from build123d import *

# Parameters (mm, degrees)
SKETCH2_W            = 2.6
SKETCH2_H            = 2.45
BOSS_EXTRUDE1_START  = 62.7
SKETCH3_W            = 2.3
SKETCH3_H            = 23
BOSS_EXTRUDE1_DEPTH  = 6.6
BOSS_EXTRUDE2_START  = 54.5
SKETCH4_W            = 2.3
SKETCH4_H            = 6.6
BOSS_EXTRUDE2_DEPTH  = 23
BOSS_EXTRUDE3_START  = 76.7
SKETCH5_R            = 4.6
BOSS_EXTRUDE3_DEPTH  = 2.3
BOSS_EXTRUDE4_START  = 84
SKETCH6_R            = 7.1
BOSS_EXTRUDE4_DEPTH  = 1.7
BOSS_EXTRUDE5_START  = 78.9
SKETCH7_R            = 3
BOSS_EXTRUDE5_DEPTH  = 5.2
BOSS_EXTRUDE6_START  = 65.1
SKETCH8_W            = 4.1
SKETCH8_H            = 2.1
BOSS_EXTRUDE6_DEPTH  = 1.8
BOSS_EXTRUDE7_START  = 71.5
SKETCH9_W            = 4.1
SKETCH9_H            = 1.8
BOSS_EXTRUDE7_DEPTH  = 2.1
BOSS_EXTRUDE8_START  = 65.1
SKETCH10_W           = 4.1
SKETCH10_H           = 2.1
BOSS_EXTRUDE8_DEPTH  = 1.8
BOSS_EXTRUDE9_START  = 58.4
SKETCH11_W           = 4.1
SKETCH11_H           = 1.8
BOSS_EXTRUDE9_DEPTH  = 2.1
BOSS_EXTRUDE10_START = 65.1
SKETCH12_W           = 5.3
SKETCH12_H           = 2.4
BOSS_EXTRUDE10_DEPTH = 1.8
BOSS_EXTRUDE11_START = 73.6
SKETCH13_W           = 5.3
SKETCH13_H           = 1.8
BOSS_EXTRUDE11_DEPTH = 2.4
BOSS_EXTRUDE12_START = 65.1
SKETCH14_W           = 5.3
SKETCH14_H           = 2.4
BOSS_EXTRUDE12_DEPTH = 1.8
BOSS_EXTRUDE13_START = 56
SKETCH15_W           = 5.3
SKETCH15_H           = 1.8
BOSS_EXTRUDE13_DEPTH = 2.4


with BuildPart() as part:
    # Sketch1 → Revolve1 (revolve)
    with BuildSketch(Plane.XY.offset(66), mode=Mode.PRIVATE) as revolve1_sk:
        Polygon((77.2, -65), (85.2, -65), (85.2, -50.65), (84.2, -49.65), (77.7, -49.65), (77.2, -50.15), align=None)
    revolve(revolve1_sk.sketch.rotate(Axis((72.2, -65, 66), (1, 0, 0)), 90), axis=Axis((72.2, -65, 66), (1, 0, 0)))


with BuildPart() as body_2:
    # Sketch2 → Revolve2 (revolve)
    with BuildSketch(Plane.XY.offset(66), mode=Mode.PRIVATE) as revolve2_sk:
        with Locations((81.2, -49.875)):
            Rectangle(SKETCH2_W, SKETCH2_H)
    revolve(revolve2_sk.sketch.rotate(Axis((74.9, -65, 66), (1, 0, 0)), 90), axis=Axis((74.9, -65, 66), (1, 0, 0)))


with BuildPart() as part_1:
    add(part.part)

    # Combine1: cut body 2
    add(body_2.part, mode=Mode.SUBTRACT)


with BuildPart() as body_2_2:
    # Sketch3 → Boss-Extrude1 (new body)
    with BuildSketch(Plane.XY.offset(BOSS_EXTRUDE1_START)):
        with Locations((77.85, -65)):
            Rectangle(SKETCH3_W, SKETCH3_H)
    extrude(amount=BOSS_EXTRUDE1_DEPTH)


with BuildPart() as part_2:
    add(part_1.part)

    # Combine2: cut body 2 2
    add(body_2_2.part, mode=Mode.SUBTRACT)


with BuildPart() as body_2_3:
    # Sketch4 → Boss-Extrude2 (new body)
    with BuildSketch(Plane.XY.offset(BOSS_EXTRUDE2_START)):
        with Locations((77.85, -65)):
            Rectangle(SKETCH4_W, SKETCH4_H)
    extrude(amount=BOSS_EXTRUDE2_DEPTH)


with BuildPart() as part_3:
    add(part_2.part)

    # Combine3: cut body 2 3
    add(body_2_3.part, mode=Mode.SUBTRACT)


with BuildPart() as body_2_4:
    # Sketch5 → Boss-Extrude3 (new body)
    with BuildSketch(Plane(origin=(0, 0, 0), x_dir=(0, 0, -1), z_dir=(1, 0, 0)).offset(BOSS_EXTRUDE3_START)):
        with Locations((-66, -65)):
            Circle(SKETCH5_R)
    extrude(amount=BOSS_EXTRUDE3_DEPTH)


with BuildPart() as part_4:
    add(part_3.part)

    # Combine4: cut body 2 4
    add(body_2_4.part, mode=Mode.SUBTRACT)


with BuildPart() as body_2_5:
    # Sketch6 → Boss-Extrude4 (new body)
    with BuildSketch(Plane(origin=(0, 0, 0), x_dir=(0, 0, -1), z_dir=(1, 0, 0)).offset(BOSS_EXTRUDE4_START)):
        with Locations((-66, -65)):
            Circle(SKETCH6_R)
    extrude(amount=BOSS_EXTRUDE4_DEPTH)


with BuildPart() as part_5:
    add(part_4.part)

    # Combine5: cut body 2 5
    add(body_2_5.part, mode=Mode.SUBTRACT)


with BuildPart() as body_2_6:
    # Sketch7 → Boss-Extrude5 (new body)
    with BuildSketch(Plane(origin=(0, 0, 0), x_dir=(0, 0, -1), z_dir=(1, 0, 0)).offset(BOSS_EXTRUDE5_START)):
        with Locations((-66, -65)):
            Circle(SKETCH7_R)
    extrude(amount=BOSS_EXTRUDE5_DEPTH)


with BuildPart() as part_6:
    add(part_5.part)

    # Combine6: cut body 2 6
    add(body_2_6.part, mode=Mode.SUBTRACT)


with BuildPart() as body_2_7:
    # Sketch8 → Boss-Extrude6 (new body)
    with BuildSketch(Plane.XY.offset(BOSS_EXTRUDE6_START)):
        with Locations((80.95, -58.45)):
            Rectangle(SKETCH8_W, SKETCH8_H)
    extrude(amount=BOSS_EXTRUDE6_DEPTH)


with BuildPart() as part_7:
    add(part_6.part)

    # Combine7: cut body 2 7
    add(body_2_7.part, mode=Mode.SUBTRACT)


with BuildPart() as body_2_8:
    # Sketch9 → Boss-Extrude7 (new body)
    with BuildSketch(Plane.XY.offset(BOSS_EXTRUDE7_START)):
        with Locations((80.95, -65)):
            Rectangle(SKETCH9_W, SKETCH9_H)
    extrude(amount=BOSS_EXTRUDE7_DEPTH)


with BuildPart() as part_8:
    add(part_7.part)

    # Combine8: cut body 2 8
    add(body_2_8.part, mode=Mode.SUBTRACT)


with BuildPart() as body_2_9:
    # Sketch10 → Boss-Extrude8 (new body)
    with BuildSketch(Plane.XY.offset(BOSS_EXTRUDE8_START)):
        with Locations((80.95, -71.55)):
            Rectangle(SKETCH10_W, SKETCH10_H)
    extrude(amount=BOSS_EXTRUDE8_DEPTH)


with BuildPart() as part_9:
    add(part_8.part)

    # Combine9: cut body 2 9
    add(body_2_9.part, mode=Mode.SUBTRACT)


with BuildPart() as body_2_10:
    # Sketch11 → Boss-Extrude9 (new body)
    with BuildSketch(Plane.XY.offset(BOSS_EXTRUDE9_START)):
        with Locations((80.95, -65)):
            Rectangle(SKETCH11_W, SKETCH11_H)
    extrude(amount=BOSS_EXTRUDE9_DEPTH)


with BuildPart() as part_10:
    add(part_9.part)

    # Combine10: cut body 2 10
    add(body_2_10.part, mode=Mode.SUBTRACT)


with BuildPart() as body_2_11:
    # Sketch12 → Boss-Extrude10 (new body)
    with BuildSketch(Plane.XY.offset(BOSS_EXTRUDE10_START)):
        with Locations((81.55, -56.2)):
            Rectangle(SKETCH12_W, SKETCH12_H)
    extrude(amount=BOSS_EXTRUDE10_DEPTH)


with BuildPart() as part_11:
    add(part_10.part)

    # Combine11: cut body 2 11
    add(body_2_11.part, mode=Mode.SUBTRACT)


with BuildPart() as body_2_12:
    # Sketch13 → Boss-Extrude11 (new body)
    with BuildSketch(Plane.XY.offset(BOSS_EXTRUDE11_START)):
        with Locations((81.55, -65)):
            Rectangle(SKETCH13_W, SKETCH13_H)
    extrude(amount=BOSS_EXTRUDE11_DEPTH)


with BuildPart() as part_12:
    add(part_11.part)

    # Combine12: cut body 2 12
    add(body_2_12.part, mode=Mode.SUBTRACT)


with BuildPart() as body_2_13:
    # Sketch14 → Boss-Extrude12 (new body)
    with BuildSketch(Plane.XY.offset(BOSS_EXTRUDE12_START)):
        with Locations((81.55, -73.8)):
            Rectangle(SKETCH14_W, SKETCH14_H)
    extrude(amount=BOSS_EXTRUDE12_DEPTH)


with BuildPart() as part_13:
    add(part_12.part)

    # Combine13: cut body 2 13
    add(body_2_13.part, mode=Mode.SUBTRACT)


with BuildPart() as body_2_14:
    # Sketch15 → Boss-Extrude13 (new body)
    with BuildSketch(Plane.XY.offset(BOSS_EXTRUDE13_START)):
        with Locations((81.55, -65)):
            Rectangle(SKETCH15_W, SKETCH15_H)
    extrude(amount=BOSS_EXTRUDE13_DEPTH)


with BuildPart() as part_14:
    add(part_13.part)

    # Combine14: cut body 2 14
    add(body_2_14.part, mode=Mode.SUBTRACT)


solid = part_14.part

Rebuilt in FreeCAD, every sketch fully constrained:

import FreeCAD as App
import Part
import Sketcher
from FreeCAD import Vector
Q = App.Units.Quantity

doc = App.newDocument("Part")
body = doc.addObject("PartDesign::Body", "Body")

# Sketch on XY plane
sketch1 = doc.addObject("Sketcher::SketchObject", "Sketch")
body.addObject(sketch1)
sketch1.AttachmentSupport = (doc.XY_Plane, [""])
sketch1.MapMode = "FlatFace"
sketch1.AttachmentOffset = App.Placement(Vector(0, 0, 66), App.Rotation())
sketch1.addGeometry(Part.LineSegment(Vector(77.2, -65, 0), Vector(85.2, -65, 0)), False)
sketch1.addGeometry(Part.LineSegment(Vector(85.2, -65, 0), Vector(85.2, -50.6, 0)), False)
sketch1.addGeometry(Part.LineSegment(Vector(85.2, -50.6, 0), Vector(84.2, -49.6, 0)), False)
sketch1.addGeometry(Part.LineSegment(Vector(84.2, -49.6, 0), Vector(77.7, -49.6, 0)), False)
sketch1.addGeometry(Part.LineSegment(Vector(77.7, -49.6, 0), Vector(77.2, -50.1, 0)), False)
sketch1.addGeometry(Part.LineSegment(Vector(77.2, -50.1, 0), Vector(77.2, -65, 0)), False)
sketch1.addGeometry(Part.LineSegment(Vector(77.2, -65, 0), Vector(85.2, -65, 0)), True)  # axis
sketch1.addConstraint(Sketcher.Constraint("Coincident", 0, 2, 1, 1))
sketch1.addConstraint(Sketcher.Constraint("Coincident", 1, 2, 2, 1))
sketch1.addConstraint(Sketcher.Constraint("Coincident", 2, 2, 3, 1))
sketch1.addConstraint(Sketcher.Constraint("Coincident", 3, 2, 4, 1))
sketch1.addConstraint(Sketcher.Constraint("Coincident", 4, 2, 5, 1))
sketch1.addConstraint(Sketcher.Constraint("Coincident", 5, 2, 0, 1))
sketch1.addConstraint(Sketcher.Constraint("Horizontal", 0))
sketch1.addConstraint(Sketcher.Constraint("Vertical", 1))
sketch1.addConstraint(Sketcher.Constraint("Horizontal", 3))
sketch1.addConstraint(Sketcher.Constraint("Vertical", 5))
sketch1.addConstraint(Sketcher.Constraint("Horizontal", 6))
sketch1.addConstraint(Sketcher.Constraint("Coincident", 6, 1, 5, 2))
sketch1.addConstraint(Sketcher.Constraint("Perpendicular", 2, 4))
sketch1.addConstraint(Sketcher.Constraint("Vertical", 1, 2, 6, 2))
sketch1.addConstraint(Sketcher.Constraint("DistanceX", 0, 1, 0, 2, Q("8 mm")))
sketch1.addConstraint(Sketcher.Constraint("Angle", 2, Q("135 deg")))
sketch1.addConstraint(Sketcher.Constraint("DistanceX", 3, 2, 3, 1, Q("6.5 mm")))
sketch1.addConstraint(Sketcher.Constraint("DistanceY", 0, 2, -1, 1, Q("65 mm")))
sketch1.addConstraint(Sketcher.Constraint("DistanceX", 2, 2, 1, 2, Q("1 mm")))
sketch1.addConstraint(Sketcher.Constraint("DistanceY", 1, 1, 1, 2, Q("14.35 mm")))
sketch1.addConstraint(Sketcher.Constraint("DistanceX", -1, 1, 0, 2, Q("85.2 mm")))
revolution = doc.addObject("PartDesign::Revolution", "Revolution")
body.addObject(revolution)
revolution.Profile = sketch1
revolution.ReferenceAxis = (sketch1, ["Axis0"])
revolution.Angle = 360
body2 = doc.addObject("PartDesign::Body", "Body001")

# Sketch on XY plane
sketch2 = doc.addObject("Sketcher::SketchObject", "Sketch001")
body2.addObject(sketch2)
sketch2.AttachmentSupport = (doc.getObject("XY_Plane001"), [""])
sketch2.MapMode = "FlatFace"
sketch2.AttachmentOffset = App.Placement(Vector(0, 0, 66), App.Rotation())
sketch2.addGeometry(Part.LineSegment(Vector(79.9, -48.6, 0), Vector(79.9, -51.1, 0)), False)
sketch2.addGeometry(Part.LineSegment(Vector(79.9, -51.1, 0), Vector(82.5, -51.1, 0)), False)
sketch2.addGeometry(Part.LineSegment(Vector(82.5, -51.1, 0), Vector(82.5, -48.6, 0)), False)
sketch2.addGeometry(Part.LineSegment(Vector(82.5, -48.6, 0), Vector(79.9, -48.6, 0)), False)
sketch2.addGeometry(Part.LineSegment(Vector(79.9, -65, 0), Vector(82.5, -65, 0)), True)  # axis
sketch2.addConstraint(Sketcher.Constraint("Coincident", 0, 2, 1, 1))
sketch2.addConstraint(Sketcher.Constraint("Coincident", 1, 2, 2, 1))
sketch2.addConstraint(Sketcher.Constraint("Coincident", 2, 2, 3, 1))
sketch2.addConstraint(Sketcher.Constraint("Coincident", 3, 2, 0, 1))
sketch2.addConstraint(Sketcher.Constraint("Vertical", 0))
sketch2.addConstraint(Sketcher.Constraint("Horizontal", 1))
sketch2.addConstraint(Sketcher.Constraint("Vertical", 2))
sketch2.addConstraint(Sketcher.Constraint("Horizontal", 3))
sketch2.addConstraint(Sketcher.Constraint("Horizontal", 4))
sketch2.addConstraint(Sketcher.Constraint("Vertical", 3, 2, 4, 1))
sketch2.addConstraint(Sketcher.Constraint("Vertical", 2, 2, 4, 2))
sketch2.addConstraint(Sketcher.Constraint("DistanceX", 1, 1, 1, 2, Q("2.6 mm")))
sketch2.addConstraint(Sketcher.Constraint("DistanceY", 4, 1, -1, 1, Q("65 mm")))
sketch2.addConstraint(Sketcher.Constraint("DistanceY", 0, 2, 0, 1, Q("2.45 mm")))
sketch2.addConstraint(Sketcher.Constraint("DistanceX", -1, 1, 0, 2, Q("79.9 mm")))
sketch2.addConstraint(Sketcher.Constraint("DistanceY", 0, 2, -1, 1, Q("51.1 mm")))
revolution2 = doc.addObject("PartDesign::Revolution", "Revolution001")
body2.addObject(revolution2)
revolution2.Profile = sketch2
revolution2.ReferenceAxis = (sketch2, ["Axis0"])
revolution2.Angle = 360
doc.recompute()

boolean = doc.addObject("PartDesign::Boolean", "Boolean")
body.addObject(boolean)
boolean.Type = "Cut"
boolean.addObjects([body2])
body3 = doc.addObject("PartDesign::Body", "Body002")

# Sketch on XY plane
sketch3 = doc.addObject("Sketcher::SketchObject", "Sketch002")
body3.addObject(sketch3)
sketch3.AttachmentSupport = (doc.getObject("XY_Plane002"), [""])
sketch3.MapMode = "FlatFace"
sketch3.AttachmentOffset = App.Placement(Vector(0, 0, 62.7), App.Rotation())
sketch3.addGeometry(Part.LineSegment(Vector(76.7, -53.5, 0), Vector(76.7, -76.5, 0)), False)
sketch3.addGeometry(Part.LineSegment(Vector(76.7, -76.5, 0), Vector(79, -76.5, 0)), False)
sketch3.addGeometry(Part.LineSegment(Vector(79, -76.5, 0), Vector(79, -53.5, 0)), False)
sketch3.addGeometry(Part.LineSegment(Vector(79, -53.5, 0), Vector(76.7, -53.5, 0)), False)
sketch3.addConstraint(Sketcher.Constraint("Coincident", 0, 2, 1, 1))
sketch3.addConstraint(Sketcher.Constraint("Coincident", 1, 2, 2, 1))
sketch3.addConstraint(Sketcher.Constraint("Coincident", 2, 2, 3, 1))
sketch3.addConstraint(Sketcher.Constraint("Coincident", 3, 2, 0, 1))
sketch3.addConstraint(Sketcher.Constraint("Vertical", 0))
sketch3.addConstraint(Sketcher.Constraint("Horizontal", 1))
sketch3.addConstraint(Sketcher.Constraint("Vertical", 2))
sketch3.addConstraint(Sketcher.Constraint("Horizontal", 3))
sketch3.addConstraint(Sketcher.Constraint("DistanceY", 0, 2, 0, 1, Q("23 mm")))
sketch3.addConstraint(Sketcher.Constraint("DistanceX", 1, 1, 1, 2, Q("2.3 mm")))
sketch3.addConstraint(Sketcher.Constraint("DistanceX", -1, 1, 1, 2, Q("79 mm")))
sketch3.addConstraint(Sketcher.Constraint("DistanceY", 0, 2, -1, 1, Q("76.5 mm")))
pad1 = doc.addObject("PartDesign::Pad", "Pad")
body3.addObject(pad1)
pad1.Profile = sketch3
pad1.Length = 6.6
doc.recompute()

boolean2 = doc.addObject("PartDesign::Boolean", "Boolean001")
body.addObject(boolean2)
boolean2.Type = "Cut"
boolean2.addObjects([body3])
body4 = doc.addObject("PartDesign::Body", "Body003")

# Sketch on XY plane
sketch4 = doc.addObject("Sketcher::SketchObject", "Sketch003")
body4.addObject(sketch4)
sketch4.AttachmentSupport = (doc.getObject("XY_Plane003"), [""])
sketch4.MapMode = "FlatFace"
sketch4.AttachmentOffset = App.Placement(Vector(0, 0, 54.5), App.Rotation())
sketch4.addGeometry(Part.LineSegment(Vector(76.7, -61.7, 0), Vector(76.7, -68.3, 0)), False)
sketch4.addGeometry(Part.LineSegment(Vector(76.7, -68.3, 0), Vector(79, -68.3, 0)), False)
sketch4.addGeometry(Part.LineSegment(Vector(79, -68.3, 0), Vector(79, -61.7, 0)), False)
sketch4.addGeometry(Part.LineSegment(Vector(79, -61.7, 0), Vector(76.7, -61.7, 0)), False)
sketch4.addConstraint(Sketcher.Constraint("Coincident", 0, 2, 1, 1))
sketch4.addConstraint(Sketcher.Constraint("Coincident", 1, 2, 2, 1))
sketch4.addConstraint(Sketcher.Constraint("Coincident", 2, 2, 3, 1))
sketch4.addConstraint(Sketcher.Constraint("Coincident", 3, 2, 0, 1))
sketch4.addConstraint(Sketcher.Constraint("Vertical", 0))
sketch4.addConstraint(Sketcher.Constraint("Horizontal", 1))
sketch4.addConstraint(Sketcher.Constraint("Vertical", 2))
sketch4.addConstraint(Sketcher.Constraint("Horizontal", 3))
sketch4.addConstraint(Sketcher.Constraint("DistanceX", 1, 1, 1, 2, Q("2.3 mm")))
sketch4.addConstraint(Sketcher.Constraint("DistanceY", 0, 2, 0, 1, Q("6.6 mm")))
sketch4.addConstraint(Sketcher.Constraint("DistanceX", -1, 1, 1, 2, Q("79 mm")))
sketch4.addConstraint(Sketcher.Constraint("DistanceY", 0, 2, -1, 1, Q("68.3 mm")))
pad2 = doc.addObject("PartDesign::Pad", "Pad001")
body4.addObject(pad2)
pad2.Profile = sketch4
pad2.Length = 23
doc.recompute()

boolean3 = doc.addObject("PartDesign::Boolean", "Boolean002")
body.addObject(boolean3)
boolean3.Type = "Cut"
boolean3.addObjects([body4])
body5 = doc.addObject("PartDesign::Body", "Body004")

# Sketch on YZ plane
sketch5 = doc.addObject("Sketcher::SketchObject", "Sketch004")
body5.addObject(sketch5)
sketch5.AttachmentSupport = (doc.getObject("YZ_Plane004"), [""])
sketch5.MapMode = "FlatFace"
sketch5.AttachmentOffset = App.Placement(Vector(0, 0, 76.7), App.Rotation())
sketch5.addGeometry(Part.Circle(Vector(-65, 66, 0), Vector(0, 0, 1), 4.6), False)
sketch5.addConstraint(Sketcher.Constraint("Diameter", 0, Q("9.2 mm")))
sketch5.addConstraint(Sketcher.Constraint("DistanceX", 0, 3, -1, 1, Q("65 mm")))
sketch5.addConstraint(Sketcher.Constraint("DistanceY", -1, 1, 0, 3, Q("66 mm")))
pad3 = doc.addObject("PartDesign::Pad", "Pad002")
body5.addObject(pad3)
pad3.Profile = sketch5
pad3.Length = 2.3
doc.recompute()

boolean4 = doc.addObject("PartDesign::Boolean", "Boolean003")
body.addObject(boolean4)
boolean4.Type = "Cut"
boolean4.addObjects([body5])
body6 = doc.addObject("PartDesign::Body", "Body005")

# Sketch on YZ plane
sketch6 = doc.addObject("Sketcher::SketchObject", "Sketch005")
body6.addObject(sketch6)
sketch6.AttachmentSupport = (doc.getObject("YZ_Plane005"), [""])
sketch6.MapMode = "FlatFace"
sketch6.AttachmentOffset = App.Placement(Vector(0, 0, 84), App.Rotation())
sketch6.addGeometry(Part.Circle(Vector(-65, 66, 0), Vector(0, 0, 1), 7), False)
sketch6.addConstraint(Sketcher.Constraint("Diameter", 0, Q("14.2 mm")))
sketch6.addConstraint(Sketcher.Constraint("DistanceX", 0, 3, -1, 1, Q("65 mm")))
sketch6.addConstraint(Sketcher.Constraint("DistanceY", -1, 1, 0, 3, Q("66 mm")))
pad4 = doc.addObject("PartDesign::Pad", "Pad003")
body6.addObject(pad4)
pad4.Profile = sketch6
pad4.Length = 1.7
doc.recompute()

boolean5 = doc.addObject("PartDesign::Boolean", "Boolean004")
body.addObject(boolean5)
boolean5.Type = "Cut"
boolean5.addObjects([body6])
body7 = doc.addObject("PartDesign::Body", "Body006")

# Sketch on YZ plane
sketch7 = doc.addObject("Sketcher::SketchObject", "Sketch006")
body7.addObject(sketch7)
sketch7.AttachmentSupport = (doc.getObject("YZ_Plane006"), [""])
sketch7.MapMode = "FlatFace"
sketch7.AttachmentOffset = App.Placement(Vector(0, 0, 78.9), App.Rotation())
sketch7.addGeometry(Part.Circle(Vector(-65, 66, 0), Vector(0, 0, 1), 3), False)
sketch7.addConstraint(Sketcher.Constraint("Diameter", 0, Q("6 mm")))
sketch7.addConstraint(Sketcher.Constraint("DistanceX", 0, 3, -1, 1, Q("65 mm")))
sketch7.addConstraint(Sketcher.Constraint("DistanceY", -1, 1, 0, 3, Q("66 mm")))
pad5 = doc.addObject("PartDesign::Pad", "Pad004")
body7.addObject(pad5)
pad5.Profile = sketch7
pad5.Length = 5.2
doc.recompute()

boolean6 = doc.addObject("PartDesign::Boolean", "Boolean005")
body.addObject(boolean6)
boolean6.Type = "Cut"
boolean6.addObjects([body7])
body8 = doc.addObject("PartDesign::Body", "Body007")

# Sketch on XY plane
sketch8 = doc.addObject("Sketcher::SketchObject", "Sketch007")
body8.addObject(sketch8)
sketch8.AttachmentSupport = (doc.getObject("XY_Plane007"), [""])
sketch8.MapMode = "FlatFace"
sketch8.AttachmentOffset = App.Placement(Vector(0, 0, 65.1), App.Rotation())
sketch8.addGeometry(Part.LineSegment(Vector(78.9, -57.4, 0), Vector(78.9, -59.5, 0)), False)
sketch8.addGeometry(Part.LineSegment(Vector(78.9, -59.5, 0), Vector(83, -59.5, 0)), False)
sketch8.addGeometry(Part.LineSegment(Vector(83, -59.5, 0), Vector(83, -57.4, 0)), False)
sketch8.addGeometry(Part.LineSegment(Vector(83, -57.4, 0), Vector(78.9, -57.4, 0)), False)
sketch8.addConstraint(Sketcher.Constraint("Coincident", 0, 2, 1, 1))
sketch8.addConstraint(Sketcher.Constraint("Coincident", 1, 2, 2, 1))
sketch8.addConstraint(Sketcher.Constraint("Coincident", 2, 2, 3, 1))
sketch8.addConstraint(Sketcher.Constraint("Coincident", 3, 2, 0, 1))
sketch8.addConstraint(Sketcher.Constraint("Vertical", 0))
sketch8.addConstraint(Sketcher.Constraint("Horizontal", 1))
sketch8.addConstraint(Sketcher.Constraint("Vertical", 2))
sketch8.addConstraint(Sketcher.Constraint("Horizontal", 3))
sketch8.addConstraint(Sketcher.Constraint("DistanceX", 1, 1, 1, 2, Q("4.1 mm")))
sketch8.addConstraint(Sketcher.Constraint("DistanceY", 0, 2, 0, 1, Q("2.1 mm")))
sketch8.addConstraint(Sketcher.Constraint("DistanceX", -1, 1, 1, 2, Q("83 mm")))
sketch8.addConstraint(Sketcher.Constraint("DistanceY", 0, 2, -1, 1, Q("59.5 mm")))
pad6 = doc.addObject("PartDesign::Pad", "Pad005")
body8.addObject(pad6)
pad6.Profile = sketch8
pad6.Length = 1.8
doc.recompute()

boolean7 = doc.addObject("PartDesign::Boolean", "Boolean006")
body.addObject(boolean7)
boolean7.Type = "Cut"
boolean7.addObjects([body8])
body9 = doc.addObject("PartDesign::Body", "Body008")

# Sketch on XY plane
sketch9 = doc.addObject("Sketcher::SketchObject", "Sketch008")
body9.addObject(sketch9)
sketch9.AttachmentSupport = (doc.getObject("XY_Plane008"), [""])
sketch9.MapMode = "FlatFace"
sketch9.AttachmentOffset = App.Placement(Vector(0, 0, 71.5), App.Rotation())
sketch9.addGeometry(Part.LineSegment(Vector(78.9, -64.1, 0), Vector(78.9, -65.9, 0)), False)
sketch9.addGeometry(Part.LineSegment(Vector(78.9, -65.9, 0), Vector(83, -65.9, 0)), False)
sketch9.addGeometry(Part.LineSegment(Vector(83, -65.9, 0), Vector(83, -64.1, 0)), False)
sketch9.addGeometry(Part.LineSegment(Vector(83, -64.1, 0), Vector(78.9, -64.1, 0)), False)
sketch9.addConstraint(Sketcher.Constraint("Coincident", 0, 2, 1, 1))
sketch9.addConstraint(Sketcher.Constraint("Coincident", 1, 2, 2, 1))
sketch9.addConstraint(Sketcher.Constraint("Coincident", 2, 2, 3, 1))
sketch9.addConstraint(Sketcher.Constraint("Coincident", 3, 2, 0, 1))
sketch9.addConstraint(Sketcher.Constraint("Vertical", 0))
sketch9.addConstraint(Sketcher.Constraint("Horizontal", 1))
sketch9.addConstraint(Sketcher.Constraint("Vertical", 2))
sketch9.addConstraint(Sketcher.Constraint("Horizontal", 3))
sketch9.addConstraint(Sketcher.Constraint("DistanceX", 1, 1, 1, 2, Q("4.1 mm")))
sketch9.addConstraint(Sketcher.Constraint("DistanceY", 0, 2, 0, 1, Q("1.8 mm")))
sketch9.addConstraint(Sketcher.Constraint("DistanceX", -1, 1, 1, 2, Q("83 mm")))
sketch9.addConstraint(Sketcher.Constraint("DistanceY", 0, 2, -1, 1, Q("65.9 mm")))
pad7 = doc.addObject("PartDesign::Pad", "Pad006")
body9.addObject(pad7)
pad7.Profile = sketch9
pad7.Length = 2.1
doc.recompute()

boolean8 = doc.addObject("PartDesign::Boolean", "Boolean007")
body.addObject(boolean8)
boolean8.Type = "Cut"
boolean8.addObjects([body9])
body10 = doc.addObject("PartDesign::Body", "Body009")

# Sketch on XY plane
sketch10 = doc.addObject("Sketcher::SketchObject", "Sketch009")
body10.addObject(sketch10)
sketch10.AttachmentSupport = (doc.getObject("XY_Plane009"), [""])
sketch10.MapMode = "FlatFace"
sketch10.AttachmentOffset = App.Placement(Vector(0, 0, 65.1), App.Rotation())
sketch10.addGeometry(Part.LineSegment(Vector(78.9, -70.5, 0), Vector(78.9, -72.6, 0)), False)
sketch10.addGeometry(Part.LineSegment(Vector(78.9, -72.6, 0), Vector(83, -72.6, 0)), False)
sketch10.addGeometry(Part.LineSegment(Vector(83, -72.6, 0), Vector(83, -70.5, 0)), False)
sketch10.addGeometry(Part.LineSegment(Vector(83, -70.5, 0), Vector(78.9, -70.5, 0)), False)
sketch10.addConstraint(Sketcher.Constraint("Coincident", 0, 2, 1, 1))
sketch10.addConstraint(Sketcher.Constraint("Coincident", 1, 2, 2, 1))
sketch10.addConstraint(Sketcher.Constraint("Coincident", 2, 2, 3, 1))
sketch10.addConstraint(Sketcher.Constraint("Coincident", 3, 2, 0, 1))
sketch10.addConstraint(Sketcher.Constraint("Vertical", 0))
sketch10.addConstraint(Sketcher.Constraint("Horizontal", 1))
sketch10.addConstraint(Sketcher.Constraint("Vertical", 2))
sketch10.addConstraint(Sketcher.Constraint("Horizontal", 3))
sketch10.addConstraint(Sketcher.Constraint("DistanceX", 1, 1, 1, 2, Q("4.1 mm")))
sketch10.addConstraint(Sketcher.Constraint("DistanceY", 0, 2, 0, 1, Q("2.1 mm")))
sketch10.addConstraint(Sketcher.Constraint("DistanceX", -1, 1, 1, 2, Q("83 mm")))
sketch10.addConstraint(Sketcher.Constraint("DistanceY", 0, 2, -1, 1, Q("72.6 mm")))
pad8 = doc.addObject("PartDesign::Pad", "Pad007")
body10.addObject(pad8)
pad8.Profile = sketch10
pad8.Length = 1.8
doc.recompute()

boolean9 = doc.addObject("PartDesign::Boolean", "Boolean008")
body.addObject(boolean9)
boolean9.Type = "Cut"
boolean9.addObjects([body10])
body11 = doc.addObject("PartDesign::Body", "Body010")

# Sketch on XY plane
sketch11 = doc.addObject("Sketcher::SketchObject", "Sketch010")
body11.addObject(sketch11)
sketch11.AttachmentSupport = (doc.getObject("XY_Plane010"), [""])
sketch11.MapMode = "FlatFace"
sketch11.AttachmentOffset = App.Placement(Vector(0, 0, 58.4), App.Rotation())
sketch11.addGeometry(Part.LineSegment(Vector(78.9, -64.1, 0), Vector(78.9, -65.9, 0)), False)
sketch11.addGeometry(Part.LineSegment(Vector(78.9, -65.9, 0), Vector(83, -65.9, 0)), False)
sketch11.addGeometry(Part.LineSegment(Vector(83, -65.9, 0), Vector(83, -64.1, 0)), False)
sketch11.addGeometry(Part.LineSegment(Vector(83, -64.1, 0), Vector(78.9, -64.1, 0)), False)
sketch11.addConstraint(Sketcher.Constraint("Coincident", 0, 2, 1, 1))
sketch11.addConstraint(Sketcher.Constraint("Coincident", 1, 2, 2, 1))
sketch11.addConstraint(Sketcher.Constraint("Coincident", 2, 2, 3, 1))
sketch11.addConstraint(Sketcher.Constraint("Coincident", 3, 2, 0, 1))
sketch11.addConstraint(Sketcher.Constraint("Vertical", 0))
sketch11.addConstraint(Sketcher.Constraint("Horizontal", 1))
sketch11.addConstraint(Sketcher.Constraint("Vertical", 2))
sketch11.addConstraint(Sketcher.Constraint("Horizontal", 3))
sketch11.addConstraint(Sketcher.Constraint("DistanceX", 1, 1, 1, 2, Q("4.1 mm")))
sketch11.addConstraint(Sketcher.Constraint("DistanceY", 0, 2, 0, 1, Q("1.8 mm")))
sketch11.addConstraint(Sketcher.Constraint("DistanceX", -1, 1, 1, 2, Q("83 mm")))
sketch11.addConstraint(Sketcher.Constraint("DistanceY", 0, 2, -1, 1, Q("65.9 mm")))
pad9 = doc.addObject("PartDesign::Pad", "Pad008")
body11.addObject(pad9)
pad9.Profile = sketch11
pad9.Length = 2.1
doc.recompute()

boolean10 = doc.addObject("PartDesign::Boolean", "Boolean009")
body.addObject(boolean10)
boolean10.Type = "Cut"
boolean10.addObjects([body11])
body12 = doc.addObject("PartDesign::Body", "Body011")

# Sketch on XY plane
sketch12 = doc.addObject("Sketcher::SketchObject", "Sketch011")
body12.addObject(sketch12)
sketch12.AttachmentSupport = (doc.getObject("XY_Plane011"), [""])
sketch12.MapMode = "FlatFace"
sketch12.AttachmentOffset = App.Placement(Vector(0, 0, 65.1), App.Rotation())
sketch12.addGeometry(Part.LineSegment(Vector(78.9, -55, 0), Vector(78.9, -57.4, 0)), False)
sketch12.addGeometry(Part.LineSegment(Vector(78.9, -57.4, 0), Vector(84.2, -57.4, 0)), False)
sketch12.addGeometry(Part.LineSegment(Vector(84.2, -57.4, 0), Vector(84.2, -55, 0)), False)
sketch12.addGeometry(Part.LineSegment(Vector(84.2, -55, 0), Vector(78.9, -55, 0)), False)
sketch12.addConstraint(Sketcher.Constraint("Coincident", 0, 2, 1, 1))
sketch12.addConstraint(Sketcher.Constraint("Coincident", 1, 2, 2, 1))
sketch12.addConstraint(Sketcher.Constraint("Coincident", 2, 2, 3, 1))
sketch12.addConstraint(Sketcher.Constraint("Coincident", 3, 2, 0, 1))
sketch12.addConstraint(Sketcher.Constraint("Vertical", 0))
sketch12.addConstraint(Sketcher.Constraint("Horizontal", 1))
sketch12.addConstraint(Sketcher.Constraint("Vertical", 2))
sketch12.addConstraint(Sketcher.Constraint("Horizontal", 3))
sketch12.addConstraint(Sketcher.Constraint("DistanceX", 1, 1, 1, 2, Q("5.3 mm")))
sketch12.addConstraint(Sketcher.Constraint("DistanceY", 0, 2, 0, 1, Q("2.4 mm")))
sketch12.addConstraint(Sketcher.Constraint("DistanceY", 2, 2, -1, 1, Q("55 mm")))
sketch12.addConstraint(Sketcher.Constraint("DistanceX", -1, 1, 0, 2, Q("78.9 mm")))
pad10 = doc.addObject("PartDesign::Pad", "Pad009")
body12.addObject(pad10)
pad10.Profile = sketch12
pad10.Length = 1.8
doc.recompute()

boolean11 = doc.addObject("PartDesign::Boolean", "Boolean010")
body.addObject(boolean11)
boolean11.Type = "Cut"
boolean11.addObjects([body12])
body13 = doc.addObject("PartDesign::Body", "Body012")

# Sketch on XY plane
sketch13 = doc.addObject("Sketcher::SketchObject", "Sketch012")
body13.addObject(sketch13)
sketch13.AttachmentSupport = (doc.getObject("XY_Plane012"), [""])
sketch13.MapMode = "FlatFace"
sketch13.AttachmentOffset = App.Placement(Vector(0, 0, 73.6), App.Rotation())
sketch13.addGeometry(Part.LineSegment(Vector(78.9, -64.1, 0), Vector(78.9, -65.9, 0)), False)
sketch13.addGeometry(Part.LineSegment(Vector(78.9, -65.9, 0), Vector(84.2, -65.9, 0)), False)
sketch13.addGeometry(Part.LineSegment(Vector(84.2, -65.9, 0), Vector(84.2, -64.1, 0)), False)
sketch13.addGeometry(Part.LineSegment(Vector(84.2, -64.1, 0), Vector(78.9, -64.1, 0)), False)
sketch13.addConstraint(Sketcher.Constraint("Coincident", 0, 2, 1, 1))
sketch13.addConstraint(Sketcher.Constraint("Coincident", 1, 2, 2, 1))
sketch13.addConstraint(Sketcher.Constraint("Coincident", 2, 2, 3, 1))
sketch13.addConstraint(Sketcher.Constraint("Coincident", 3, 2, 0, 1))
sketch13.addConstraint(Sketcher.Constraint("Vertical", 0))
sketch13.addConstraint(Sketcher.Constraint("Horizontal", 1))
sketch13.addConstraint(Sketcher.Constraint("Vertical", 2))
sketch13.addConstraint(Sketcher.Constraint("Horizontal", 3))
sketch13.addConstraint(Sketcher.Constraint("DistanceX", 1, 1, 1, 2, Q("5.3 mm")))
sketch13.addConstraint(Sketcher.Constraint("DistanceY", 0, 2, 0, 1, Q("1.8 mm")))
sketch13.addConstraint(Sketcher.Constraint("DistanceX", -1, 1, 0, 2, Q("78.9 mm")))
sketch13.addConstraint(Sketcher.Constraint("DistanceY", 0, 2, -1, 1, Q("65.9 mm")))
pad11 = doc.addObject("PartDesign::Pad", "Pad010")
body13.addObject(pad11)
pad11.Profile = sketch13
pad11.Length = 2.4
doc.recompute()

boolean12 = doc.addObject("PartDesign::Boolean", "Boolean011")
body.addObject(boolean12)
boolean12.Type = "Cut"
boolean12.addObjects([body13])
body14 = doc.addObject("PartDesign::Body", "Body013")

# Sketch on XY plane
sketch14 = doc.addObject("Sketcher::SketchObject", "Sketch013")
body14.addObject(sketch14)
sketch14.AttachmentSupport = (doc.getObject("XY_Plane013"), [""])
sketch14.MapMode = "FlatFace"
sketch14.AttachmentOffset = App.Placement(Vector(0, 0, 65.1), App.Rotation())
sketch14.addGeometry(Part.LineSegment(Vector(78.9, -72.6, 0), Vector(78.9, -75, 0)), False)
sketch14.addGeometry(Part.LineSegment(Vector(78.9, -75, 0), Vector(84.2, -75, 0)), False)
sketch14.addGeometry(Part.LineSegment(Vector(84.2, -75, 0), Vector(84.2, -72.6, 0)), False)
sketch14.addGeometry(Part.LineSegment(Vector(84.2, -72.6, 0), Vector(78.9, -72.6, 0)), False)
sketch14.addConstraint(Sketcher.Constraint("Coincident", 0, 2, 1, 1))
sketch14.addConstraint(Sketcher.Constraint("Coincident", 1, 2, 2, 1))
sketch14.addConstraint(Sketcher.Constraint("Coincident", 2, 2, 3, 1))
sketch14.addConstraint(Sketcher.Constraint("Coincident", 3, 2, 0, 1))
sketch14.addConstraint(Sketcher.Constraint("Vertical", 0))
sketch14.addConstraint(Sketcher.Constraint("Horizontal", 1))
sketch14.addConstraint(Sketcher.Constraint("Vertical", 2))
sketch14.addConstraint(Sketcher.Constraint("Horizontal", 3))
sketch14.addConstraint(Sketcher.Constraint("DistanceX", 1, 1, 1, 2, Q("5.3 mm")))
sketch14.addConstraint(Sketcher.Constraint("DistanceY", 0, 2, 0, 1, Q("2.4 mm")))
sketch14.addConstraint(Sketcher.Constraint("DistanceY", 0, 2, -1, 1, Q("75 mm")))
sketch14.addConstraint(Sketcher.Constraint("DistanceX", -1, 1, 0, 2, Q("78.9 mm")))
pad12 = doc.addObject("PartDesign::Pad", "Pad011")
body14.addObject(pad12)
pad12.Profile = sketch14
pad12.Length = 1.8
doc.recompute()

boolean13 = doc.addObject("PartDesign::Boolean", "Boolean012")
body.addObject(boolean13)
boolean13.Type = "Cut"
boolean13.addObjects([body14])
body15 = doc.addObject("PartDesign::Body", "Body014")

# Sketch on XY plane
sketch15 = doc.addObject("Sketcher::SketchObject", "Sketch014")
body15.addObject(sketch15)
sketch15.AttachmentSupport = (doc.getObject("XY_Plane014"), [""])
sketch15.MapMode = "FlatFace"
sketch15.AttachmentOffset = App.Placement(Vector(0, 0, 56), App.Rotation())
sketch15.addGeometry(Part.LineSegment(Vector(78.9, -64.1, 0), Vector(78.9, -65.9, 0)), False)
sketch15.addGeometry(Part.LineSegment(Vector(78.9, -65.9, 0), Vector(84.2, -65.9, 0)), False)
sketch15.addGeometry(Part.LineSegment(Vector(84.2, -65.9, 0), Vector(84.2, -64.1, 0)), False)
sketch15.addGeometry(Part.LineSegment(Vector(84.2, -64.1, 0), Vector(78.9, -64.1, 0)), False)
sketch15.addConstraint(Sketcher.Constraint("Coincident", 0, 2, 1, 1))
sketch15.addConstraint(Sketcher.Constraint("Coincident", 1, 2, 2, 1))
sketch15.addConstraint(Sketcher.Constraint("Coincident", 2, 2, 3, 1))
sketch15.addConstraint(Sketcher.Constraint("Coincident", 3, 2, 0, 1))
sketch15.addConstraint(Sketcher.Constraint("Vertical", 0))
sketch15.addConstraint(Sketcher.Constraint("Horizontal", 1))
sketch15.addConstraint(Sketcher.Constraint("Vertical", 2))
sketch15.addConstraint(Sketcher.Constraint("Horizontal", 3))
sketch15.addConstraint(Sketcher.Constraint("DistanceX", 1, 1, 1, 2, Q("5.3 mm")))
sketch15.addConstraint(Sketcher.Constraint("DistanceY", 0, 2, 0, 1, Q("1.8 mm")))
sketch15.addConstraint(Sketcher.Constraint("DistanceX", -1, 1, 0, 2, Q("78.9 mm")))
sketch15.addConstraint(Sketcher.Constraint("DistanceY", 0, 2, -1, 1, Q("65.9 mm")))
pad13 = doc.addObject("PartDesign::Pad", "Pad012")
body15.addObject(pad13)
pad13.Profile = sketch15
pad13.Length = 2.4
doc.recompute()

boolean14 = doc.addObject("PartDesign::Boolean", "Boolean013")
body.addObject(boolean14)
boolean14.Type = "Cut"
boolean14.addObjects([body15])

doc.recompute()
